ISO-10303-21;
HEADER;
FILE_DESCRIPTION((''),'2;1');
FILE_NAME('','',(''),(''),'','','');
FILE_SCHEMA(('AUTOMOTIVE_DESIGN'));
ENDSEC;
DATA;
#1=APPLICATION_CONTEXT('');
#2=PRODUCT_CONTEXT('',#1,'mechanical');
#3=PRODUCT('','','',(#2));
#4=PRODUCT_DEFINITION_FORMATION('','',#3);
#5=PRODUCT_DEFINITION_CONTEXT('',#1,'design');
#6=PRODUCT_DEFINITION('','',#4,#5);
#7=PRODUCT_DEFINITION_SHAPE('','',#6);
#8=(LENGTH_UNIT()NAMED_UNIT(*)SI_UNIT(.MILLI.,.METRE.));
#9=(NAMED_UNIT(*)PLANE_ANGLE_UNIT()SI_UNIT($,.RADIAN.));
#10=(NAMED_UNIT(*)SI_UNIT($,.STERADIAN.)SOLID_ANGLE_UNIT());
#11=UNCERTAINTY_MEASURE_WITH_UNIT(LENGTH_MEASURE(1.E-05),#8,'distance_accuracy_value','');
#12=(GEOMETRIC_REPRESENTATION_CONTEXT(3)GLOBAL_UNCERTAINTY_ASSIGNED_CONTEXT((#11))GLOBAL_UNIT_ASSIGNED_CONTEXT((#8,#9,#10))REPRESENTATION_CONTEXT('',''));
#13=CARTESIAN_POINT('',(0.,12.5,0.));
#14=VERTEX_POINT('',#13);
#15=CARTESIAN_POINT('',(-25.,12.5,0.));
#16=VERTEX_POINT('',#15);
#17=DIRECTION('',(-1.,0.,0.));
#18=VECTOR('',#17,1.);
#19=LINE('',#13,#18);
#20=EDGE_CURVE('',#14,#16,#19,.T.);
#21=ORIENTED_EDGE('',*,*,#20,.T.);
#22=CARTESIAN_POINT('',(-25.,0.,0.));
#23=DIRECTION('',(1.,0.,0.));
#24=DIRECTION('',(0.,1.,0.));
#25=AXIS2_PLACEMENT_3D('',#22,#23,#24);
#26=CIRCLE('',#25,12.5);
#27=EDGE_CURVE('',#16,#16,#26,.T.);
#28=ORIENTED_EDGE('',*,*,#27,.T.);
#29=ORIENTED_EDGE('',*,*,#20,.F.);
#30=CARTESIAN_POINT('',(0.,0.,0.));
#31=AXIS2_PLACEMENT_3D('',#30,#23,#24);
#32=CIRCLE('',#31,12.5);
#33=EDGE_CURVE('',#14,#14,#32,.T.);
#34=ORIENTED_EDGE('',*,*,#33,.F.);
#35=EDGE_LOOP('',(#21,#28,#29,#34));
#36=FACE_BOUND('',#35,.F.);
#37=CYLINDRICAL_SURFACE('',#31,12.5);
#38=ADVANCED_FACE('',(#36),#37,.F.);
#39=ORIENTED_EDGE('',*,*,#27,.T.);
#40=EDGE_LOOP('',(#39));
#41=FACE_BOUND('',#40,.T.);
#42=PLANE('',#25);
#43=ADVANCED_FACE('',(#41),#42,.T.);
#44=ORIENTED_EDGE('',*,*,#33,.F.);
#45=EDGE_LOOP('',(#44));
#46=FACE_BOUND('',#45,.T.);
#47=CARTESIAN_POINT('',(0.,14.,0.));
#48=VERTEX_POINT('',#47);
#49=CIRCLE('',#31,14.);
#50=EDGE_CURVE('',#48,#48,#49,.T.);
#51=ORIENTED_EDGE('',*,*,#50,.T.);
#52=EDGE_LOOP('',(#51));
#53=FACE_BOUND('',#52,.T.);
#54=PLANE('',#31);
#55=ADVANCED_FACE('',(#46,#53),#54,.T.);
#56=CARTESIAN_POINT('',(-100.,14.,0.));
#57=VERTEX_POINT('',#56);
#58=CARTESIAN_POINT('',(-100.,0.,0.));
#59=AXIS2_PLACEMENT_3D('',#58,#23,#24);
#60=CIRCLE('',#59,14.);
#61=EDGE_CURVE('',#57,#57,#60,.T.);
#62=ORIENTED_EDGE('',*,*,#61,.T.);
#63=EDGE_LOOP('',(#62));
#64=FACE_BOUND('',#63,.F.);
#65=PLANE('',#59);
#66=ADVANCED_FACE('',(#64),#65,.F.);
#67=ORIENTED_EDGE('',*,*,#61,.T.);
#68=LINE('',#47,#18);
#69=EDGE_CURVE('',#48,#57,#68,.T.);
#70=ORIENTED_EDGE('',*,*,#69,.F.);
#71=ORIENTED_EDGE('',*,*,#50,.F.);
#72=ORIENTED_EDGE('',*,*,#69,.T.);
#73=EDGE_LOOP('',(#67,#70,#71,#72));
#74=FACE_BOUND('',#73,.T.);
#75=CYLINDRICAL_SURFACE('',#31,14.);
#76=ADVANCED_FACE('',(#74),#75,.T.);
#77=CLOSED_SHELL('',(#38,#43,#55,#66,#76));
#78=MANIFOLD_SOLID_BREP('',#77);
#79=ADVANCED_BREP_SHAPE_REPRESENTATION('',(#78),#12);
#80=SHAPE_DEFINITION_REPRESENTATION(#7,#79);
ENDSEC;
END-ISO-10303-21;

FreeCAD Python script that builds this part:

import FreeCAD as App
import Part
import Sketcher
Q = App.Units.Quantity

doc = App.newDocument("Part")
body = doc.addObject("PartDesign::Body", "Body")

# Sketch on YZ plane
sketch1 = doc.addObject("Sketcher::SketchObject", "Sketch")
body.addObject(sketch1)
sketch1.AttachmentSupport = (doc.YZ_Plane, [""])
sketch1.MapMode = "FlatFace"
sketch1.addGeometry(Part.Circle(App.Vector(0, 0, 0), App.Vector(0, 0, 1), 14), False)
sketch1.addConstraint([
    Sketcher.Constraint("Coincident", 0, 3, -1, 1),
    Sketcher.Constraint("Diameter", 0, Q("28 mm")),
])
pad1 = doc.addObject("PartDesign::Pad", "Pad")
body.addObject(pad1)
pad1.Profile = sketch1
pad1.Length = 100
pad1.Reversed = True

# Sketch on YZ plane
sketch2 = doc.addObject("Sketcher::SketchObject", "Sketch001")
body.addObject(sketch2)
sketch2.AttachmentSupport = (doc.YZ_Plane, [""])
sketch2.MapMode = "FlatFace"
sketch2.addGeometry(Part.Circle(App.Vector(0, 0, 0), App.Vector(0, 0, 1), 12.5), False)
sketch2.addConstraint([
    Sketcher.Constraint("Coincident", 0, 3, -1, 1),
    Sketcher.Constraint("Diameter", 0, Q("25 mm")),
])
pocket1 = doc.addObject("PartDesign::Pocket", "Pocket")
body.addObject(pocket1)
pocket1.Profile = sketch2
pocket1.Length = 25

doc.recompute()
